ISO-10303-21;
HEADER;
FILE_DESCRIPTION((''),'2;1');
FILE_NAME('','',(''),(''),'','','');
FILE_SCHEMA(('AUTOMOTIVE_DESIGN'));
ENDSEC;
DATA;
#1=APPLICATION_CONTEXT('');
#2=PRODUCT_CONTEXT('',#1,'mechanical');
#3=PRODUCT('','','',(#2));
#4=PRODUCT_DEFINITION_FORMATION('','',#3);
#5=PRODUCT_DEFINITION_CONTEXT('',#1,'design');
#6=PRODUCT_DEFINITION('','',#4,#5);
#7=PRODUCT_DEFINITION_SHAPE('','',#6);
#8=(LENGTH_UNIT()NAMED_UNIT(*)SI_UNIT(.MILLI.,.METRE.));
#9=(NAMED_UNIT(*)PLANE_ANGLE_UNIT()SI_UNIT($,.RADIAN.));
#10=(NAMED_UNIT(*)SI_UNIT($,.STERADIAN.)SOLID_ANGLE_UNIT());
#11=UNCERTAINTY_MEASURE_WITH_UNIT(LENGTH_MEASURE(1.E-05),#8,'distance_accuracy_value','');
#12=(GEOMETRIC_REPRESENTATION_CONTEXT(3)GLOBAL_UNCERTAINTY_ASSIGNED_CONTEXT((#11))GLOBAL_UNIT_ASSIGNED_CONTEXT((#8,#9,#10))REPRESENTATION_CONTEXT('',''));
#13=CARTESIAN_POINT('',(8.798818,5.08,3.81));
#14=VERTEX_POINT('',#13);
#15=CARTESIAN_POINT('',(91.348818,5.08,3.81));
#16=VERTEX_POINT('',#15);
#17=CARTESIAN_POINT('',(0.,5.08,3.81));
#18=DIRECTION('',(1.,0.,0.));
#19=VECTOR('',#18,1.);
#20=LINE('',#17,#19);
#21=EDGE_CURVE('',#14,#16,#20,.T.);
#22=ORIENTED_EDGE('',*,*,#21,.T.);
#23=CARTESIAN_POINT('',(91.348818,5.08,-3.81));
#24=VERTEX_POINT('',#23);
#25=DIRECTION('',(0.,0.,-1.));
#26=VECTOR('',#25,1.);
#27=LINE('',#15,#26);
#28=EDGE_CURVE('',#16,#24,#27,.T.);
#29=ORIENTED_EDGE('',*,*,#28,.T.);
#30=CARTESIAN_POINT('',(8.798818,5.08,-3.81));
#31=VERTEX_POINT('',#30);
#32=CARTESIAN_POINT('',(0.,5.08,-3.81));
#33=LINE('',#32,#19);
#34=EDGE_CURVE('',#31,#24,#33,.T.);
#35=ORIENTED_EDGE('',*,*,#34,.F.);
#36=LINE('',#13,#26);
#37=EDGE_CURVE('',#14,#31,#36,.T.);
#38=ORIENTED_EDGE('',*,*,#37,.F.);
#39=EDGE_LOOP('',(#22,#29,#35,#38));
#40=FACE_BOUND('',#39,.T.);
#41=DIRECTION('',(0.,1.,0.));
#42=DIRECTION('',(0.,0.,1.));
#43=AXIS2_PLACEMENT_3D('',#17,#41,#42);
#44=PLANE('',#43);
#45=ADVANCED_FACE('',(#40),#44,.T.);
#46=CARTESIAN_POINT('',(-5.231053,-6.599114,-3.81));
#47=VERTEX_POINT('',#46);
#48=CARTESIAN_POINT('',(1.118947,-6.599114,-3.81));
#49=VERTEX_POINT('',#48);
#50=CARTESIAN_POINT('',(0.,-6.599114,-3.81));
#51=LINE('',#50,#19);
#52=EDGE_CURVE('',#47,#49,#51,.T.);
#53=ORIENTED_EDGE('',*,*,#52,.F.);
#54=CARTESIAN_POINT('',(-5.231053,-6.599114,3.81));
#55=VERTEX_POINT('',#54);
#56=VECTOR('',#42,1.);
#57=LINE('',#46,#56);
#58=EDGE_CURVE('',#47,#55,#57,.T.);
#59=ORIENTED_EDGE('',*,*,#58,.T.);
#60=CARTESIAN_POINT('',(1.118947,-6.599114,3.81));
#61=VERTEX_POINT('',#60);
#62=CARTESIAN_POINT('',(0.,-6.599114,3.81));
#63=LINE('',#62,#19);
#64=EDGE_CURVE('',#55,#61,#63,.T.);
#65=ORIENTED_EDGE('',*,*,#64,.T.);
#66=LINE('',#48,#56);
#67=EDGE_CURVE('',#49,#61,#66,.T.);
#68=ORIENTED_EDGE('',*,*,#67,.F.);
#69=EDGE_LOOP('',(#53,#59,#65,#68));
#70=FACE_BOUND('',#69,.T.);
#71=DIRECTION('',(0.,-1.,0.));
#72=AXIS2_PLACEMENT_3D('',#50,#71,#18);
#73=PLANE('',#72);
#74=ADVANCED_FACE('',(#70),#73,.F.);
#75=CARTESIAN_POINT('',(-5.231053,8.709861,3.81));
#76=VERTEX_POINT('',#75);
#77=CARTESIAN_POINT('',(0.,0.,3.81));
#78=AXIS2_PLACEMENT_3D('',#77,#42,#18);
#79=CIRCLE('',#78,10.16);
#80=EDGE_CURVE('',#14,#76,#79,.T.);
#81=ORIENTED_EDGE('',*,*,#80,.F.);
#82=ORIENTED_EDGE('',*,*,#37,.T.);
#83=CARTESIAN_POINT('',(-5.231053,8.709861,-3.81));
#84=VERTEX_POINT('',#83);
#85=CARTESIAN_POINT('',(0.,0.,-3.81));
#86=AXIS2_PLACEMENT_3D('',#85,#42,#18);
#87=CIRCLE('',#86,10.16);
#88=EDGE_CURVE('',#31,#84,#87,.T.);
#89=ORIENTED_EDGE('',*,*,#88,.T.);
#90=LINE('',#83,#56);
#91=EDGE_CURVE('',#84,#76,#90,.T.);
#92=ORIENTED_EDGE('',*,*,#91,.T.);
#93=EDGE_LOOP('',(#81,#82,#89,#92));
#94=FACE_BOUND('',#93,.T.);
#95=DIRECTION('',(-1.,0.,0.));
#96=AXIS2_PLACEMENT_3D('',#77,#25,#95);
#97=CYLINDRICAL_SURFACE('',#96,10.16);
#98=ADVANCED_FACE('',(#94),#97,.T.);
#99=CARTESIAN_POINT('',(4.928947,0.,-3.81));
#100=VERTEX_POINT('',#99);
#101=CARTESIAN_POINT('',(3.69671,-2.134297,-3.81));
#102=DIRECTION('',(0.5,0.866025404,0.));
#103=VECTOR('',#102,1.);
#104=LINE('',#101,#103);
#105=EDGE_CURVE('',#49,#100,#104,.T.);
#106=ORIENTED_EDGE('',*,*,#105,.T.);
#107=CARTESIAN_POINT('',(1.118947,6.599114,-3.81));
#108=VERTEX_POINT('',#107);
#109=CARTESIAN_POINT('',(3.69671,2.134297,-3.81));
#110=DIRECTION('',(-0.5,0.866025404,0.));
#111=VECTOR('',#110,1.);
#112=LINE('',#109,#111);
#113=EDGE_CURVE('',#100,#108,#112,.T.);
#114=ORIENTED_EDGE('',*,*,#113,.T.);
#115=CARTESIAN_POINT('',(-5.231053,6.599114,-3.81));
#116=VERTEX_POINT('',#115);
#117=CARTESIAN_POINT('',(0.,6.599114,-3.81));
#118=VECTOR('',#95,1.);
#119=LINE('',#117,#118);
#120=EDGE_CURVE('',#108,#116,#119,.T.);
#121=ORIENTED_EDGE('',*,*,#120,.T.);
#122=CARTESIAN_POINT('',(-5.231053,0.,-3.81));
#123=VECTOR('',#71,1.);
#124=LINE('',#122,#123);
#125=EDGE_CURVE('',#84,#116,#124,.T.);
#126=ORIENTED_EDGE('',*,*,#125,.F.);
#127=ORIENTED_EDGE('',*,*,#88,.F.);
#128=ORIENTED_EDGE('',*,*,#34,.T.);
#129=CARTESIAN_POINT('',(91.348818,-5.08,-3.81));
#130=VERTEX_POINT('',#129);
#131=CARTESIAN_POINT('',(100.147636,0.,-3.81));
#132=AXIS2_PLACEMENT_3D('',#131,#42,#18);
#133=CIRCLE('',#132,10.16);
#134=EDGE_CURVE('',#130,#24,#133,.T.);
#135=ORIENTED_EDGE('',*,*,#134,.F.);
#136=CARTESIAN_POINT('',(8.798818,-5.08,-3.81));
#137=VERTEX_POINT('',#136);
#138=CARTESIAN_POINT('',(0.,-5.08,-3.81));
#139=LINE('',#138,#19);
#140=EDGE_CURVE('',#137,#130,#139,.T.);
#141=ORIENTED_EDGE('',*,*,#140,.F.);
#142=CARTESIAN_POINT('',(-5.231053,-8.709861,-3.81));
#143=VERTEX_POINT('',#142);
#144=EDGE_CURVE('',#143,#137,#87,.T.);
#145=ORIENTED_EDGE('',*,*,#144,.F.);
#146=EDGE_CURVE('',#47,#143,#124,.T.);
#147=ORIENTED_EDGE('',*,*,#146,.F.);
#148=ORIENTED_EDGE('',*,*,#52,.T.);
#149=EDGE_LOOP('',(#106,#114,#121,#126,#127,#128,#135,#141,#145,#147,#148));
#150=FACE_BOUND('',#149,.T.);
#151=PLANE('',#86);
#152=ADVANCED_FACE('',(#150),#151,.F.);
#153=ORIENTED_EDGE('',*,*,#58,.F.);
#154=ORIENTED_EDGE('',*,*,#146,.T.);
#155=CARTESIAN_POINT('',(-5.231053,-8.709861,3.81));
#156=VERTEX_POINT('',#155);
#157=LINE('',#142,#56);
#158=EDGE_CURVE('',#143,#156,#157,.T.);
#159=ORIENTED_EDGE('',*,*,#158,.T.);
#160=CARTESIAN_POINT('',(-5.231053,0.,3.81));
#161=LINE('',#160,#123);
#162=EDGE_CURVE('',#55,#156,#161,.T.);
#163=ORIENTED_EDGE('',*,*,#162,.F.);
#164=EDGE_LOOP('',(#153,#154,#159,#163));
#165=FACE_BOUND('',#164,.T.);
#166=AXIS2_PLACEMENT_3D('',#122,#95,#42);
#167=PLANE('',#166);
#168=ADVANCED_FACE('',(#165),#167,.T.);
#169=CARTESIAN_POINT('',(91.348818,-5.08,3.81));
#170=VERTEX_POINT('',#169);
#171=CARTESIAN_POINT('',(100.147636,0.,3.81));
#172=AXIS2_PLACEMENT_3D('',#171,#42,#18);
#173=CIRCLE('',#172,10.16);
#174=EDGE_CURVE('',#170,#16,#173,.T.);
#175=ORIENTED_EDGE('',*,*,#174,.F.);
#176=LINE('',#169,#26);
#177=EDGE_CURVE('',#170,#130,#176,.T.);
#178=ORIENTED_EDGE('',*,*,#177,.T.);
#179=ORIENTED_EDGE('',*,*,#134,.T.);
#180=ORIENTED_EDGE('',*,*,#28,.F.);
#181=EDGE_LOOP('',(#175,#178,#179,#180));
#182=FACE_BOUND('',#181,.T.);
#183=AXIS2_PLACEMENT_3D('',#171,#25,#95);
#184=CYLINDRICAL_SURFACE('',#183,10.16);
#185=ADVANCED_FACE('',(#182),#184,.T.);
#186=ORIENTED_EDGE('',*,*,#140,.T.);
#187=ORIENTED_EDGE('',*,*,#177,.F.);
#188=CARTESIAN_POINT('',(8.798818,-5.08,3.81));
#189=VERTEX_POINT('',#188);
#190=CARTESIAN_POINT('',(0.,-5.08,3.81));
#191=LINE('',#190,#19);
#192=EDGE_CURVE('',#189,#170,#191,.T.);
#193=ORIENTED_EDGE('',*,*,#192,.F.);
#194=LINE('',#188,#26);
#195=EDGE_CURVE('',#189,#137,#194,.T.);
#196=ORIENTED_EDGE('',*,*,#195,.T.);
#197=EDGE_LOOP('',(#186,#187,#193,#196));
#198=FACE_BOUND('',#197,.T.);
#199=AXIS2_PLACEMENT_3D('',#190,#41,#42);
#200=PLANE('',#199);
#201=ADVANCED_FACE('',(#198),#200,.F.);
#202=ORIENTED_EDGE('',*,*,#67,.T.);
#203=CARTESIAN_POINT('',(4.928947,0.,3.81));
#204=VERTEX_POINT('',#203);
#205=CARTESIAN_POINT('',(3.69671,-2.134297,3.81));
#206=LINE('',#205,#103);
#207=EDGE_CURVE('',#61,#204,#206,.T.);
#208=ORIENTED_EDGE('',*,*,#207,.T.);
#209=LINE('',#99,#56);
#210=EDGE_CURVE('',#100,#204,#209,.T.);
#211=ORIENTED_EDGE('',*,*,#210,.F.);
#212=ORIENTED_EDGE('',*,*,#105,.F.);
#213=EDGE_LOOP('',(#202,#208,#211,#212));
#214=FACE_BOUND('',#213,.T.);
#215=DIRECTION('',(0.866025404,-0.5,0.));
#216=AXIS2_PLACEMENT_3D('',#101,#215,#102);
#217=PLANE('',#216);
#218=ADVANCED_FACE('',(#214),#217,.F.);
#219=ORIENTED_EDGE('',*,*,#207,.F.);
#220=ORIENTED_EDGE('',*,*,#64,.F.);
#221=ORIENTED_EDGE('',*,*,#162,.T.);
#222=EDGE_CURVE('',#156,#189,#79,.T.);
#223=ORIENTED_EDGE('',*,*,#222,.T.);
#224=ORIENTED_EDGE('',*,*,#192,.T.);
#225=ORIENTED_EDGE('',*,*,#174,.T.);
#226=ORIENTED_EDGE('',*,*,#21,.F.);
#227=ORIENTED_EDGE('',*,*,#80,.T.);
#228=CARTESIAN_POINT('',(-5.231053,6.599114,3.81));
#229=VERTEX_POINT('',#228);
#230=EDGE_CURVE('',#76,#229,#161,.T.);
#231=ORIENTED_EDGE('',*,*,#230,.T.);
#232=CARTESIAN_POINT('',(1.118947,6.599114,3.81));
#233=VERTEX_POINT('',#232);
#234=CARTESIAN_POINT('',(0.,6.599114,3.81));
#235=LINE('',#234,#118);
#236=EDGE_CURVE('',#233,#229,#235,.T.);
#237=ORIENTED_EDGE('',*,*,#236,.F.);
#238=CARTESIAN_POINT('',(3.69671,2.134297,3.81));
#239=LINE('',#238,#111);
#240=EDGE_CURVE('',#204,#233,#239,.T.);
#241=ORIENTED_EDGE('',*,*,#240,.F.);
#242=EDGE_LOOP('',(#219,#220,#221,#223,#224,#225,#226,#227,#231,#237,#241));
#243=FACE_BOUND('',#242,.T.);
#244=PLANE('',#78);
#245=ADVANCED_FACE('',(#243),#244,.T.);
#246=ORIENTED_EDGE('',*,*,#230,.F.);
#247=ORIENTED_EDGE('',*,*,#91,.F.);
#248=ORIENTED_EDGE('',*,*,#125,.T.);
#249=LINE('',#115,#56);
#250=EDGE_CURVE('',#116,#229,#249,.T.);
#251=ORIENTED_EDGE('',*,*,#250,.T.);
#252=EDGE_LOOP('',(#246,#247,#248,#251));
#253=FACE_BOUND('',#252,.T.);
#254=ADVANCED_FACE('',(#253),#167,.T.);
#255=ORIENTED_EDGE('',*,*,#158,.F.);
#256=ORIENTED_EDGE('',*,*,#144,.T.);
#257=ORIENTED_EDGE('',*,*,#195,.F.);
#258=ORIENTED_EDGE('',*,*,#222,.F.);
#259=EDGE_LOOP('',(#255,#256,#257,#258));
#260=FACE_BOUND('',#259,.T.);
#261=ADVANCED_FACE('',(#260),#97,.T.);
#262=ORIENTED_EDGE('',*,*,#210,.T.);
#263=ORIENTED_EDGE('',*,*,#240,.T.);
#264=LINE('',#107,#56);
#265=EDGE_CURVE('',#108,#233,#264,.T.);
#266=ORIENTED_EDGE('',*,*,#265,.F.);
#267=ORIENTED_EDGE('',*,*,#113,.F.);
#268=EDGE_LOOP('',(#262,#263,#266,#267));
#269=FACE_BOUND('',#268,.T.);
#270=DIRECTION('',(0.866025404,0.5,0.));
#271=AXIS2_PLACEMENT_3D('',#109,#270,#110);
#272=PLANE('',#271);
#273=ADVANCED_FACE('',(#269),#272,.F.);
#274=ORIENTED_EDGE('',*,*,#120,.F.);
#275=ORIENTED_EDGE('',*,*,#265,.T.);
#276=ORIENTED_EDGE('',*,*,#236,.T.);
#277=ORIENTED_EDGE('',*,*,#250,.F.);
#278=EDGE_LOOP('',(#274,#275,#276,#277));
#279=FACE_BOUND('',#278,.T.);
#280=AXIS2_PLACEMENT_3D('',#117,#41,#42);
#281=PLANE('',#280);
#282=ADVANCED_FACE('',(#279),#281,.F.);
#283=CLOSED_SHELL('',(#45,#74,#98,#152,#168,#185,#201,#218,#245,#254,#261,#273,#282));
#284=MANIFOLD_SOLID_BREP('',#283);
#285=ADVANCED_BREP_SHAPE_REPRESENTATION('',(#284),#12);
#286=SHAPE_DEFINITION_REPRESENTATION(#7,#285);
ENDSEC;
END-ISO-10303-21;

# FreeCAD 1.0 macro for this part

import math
import FreeCAD as App
import Part
import Sketcher
Q = App.Units.Quantity

doc = App.newDocument("Part")
params = doc.addObject("Spreadsheet::Sheet", "Params")
for row, (alias, value) in enumerate([
    ("sketch1_radius", "0.4 in"),
    ("sketch1_width", "3.25 in"),
    ("pad1_length", "0.3 in"),
    ("sketch2_radius", "0.4 in"),
    ("sketch2_length", "0.3 in"),
    ("sketch2_width", "0.25 in"),
], start=1):
    params.set(f"A{row}", alias)
    params.set(f"B{row}", "=" + value)
    params.setAlias(f"B{row}", alias)

body = doc.addObject("PartDesign::Body", "Body")

sketch1 = doc.addObject("Sketcher::SketchObject", "Sketch")
body.addObject(sketch1)
sketch1.AttachmentSupport = (doc.XY_Plane, [""])
sketch1.MapMode = "FlatFace"
sketch1.addGeometry([
    Part.ArcOfCircle(Part.Circle(App.Vector(100, 0, 0), App.Vector(0, 0, 1), 10), math.radians(0), math.radians(150)),
    Part.LineSegment(App.Vector(91, 5, 0), App.Vector(9, 5, 0)),
    Part.ArcOfCircle(Part.Circle(App.Vector(0, 0, 0), App.Vector(0, 0, 1), 10), math.radians(30), math.radians(330)),
    Part.LineSegment(App.Vector(9, -5, 0), App.Vector(91, -5, 0)),
    Part.ArcOfCircle(Part.Circle(App.Vector(100, 0, 0), App.Vector(0, 0, 1), 10), math.radians(-150), math.radians(0)),
], False)
sketch1.addConstraint([
    Sketcher.Constraint("Coincident", 0, 2, 1, 1),
    Sketcher.Constraint("Coincident", 1, 2, 2, 1),
    Sketcher.Constraint("Coincident", 2, 2, 3, 1),
    Sketcher.Constraint("Coincident", 3, 2, 4, 1),
    Sketcher.Constraint("Tangent", 4, 2, 0, 1),
    Sketcher.Constraint("Horizontal", 1),
    Sketcher.Constraint("Horizontal", 3),
    Sketcher.Constraint("Coincident", 2, 3, -1, 1),
    Sketcher.Constraint("Equal", 0, 2),
    Sketcher.Constraint("Equal", 2, 4),
    Sketcher.Constraint("Symmetric", 0, 2, 3, 2, -1),
    Sketcher.Constraint("PointOnObject", 4, 2, -1),
    Sketcher.Constraint("Radius", 0, Q("0.4 in")),
    Sketcher.Constraint("DistanceX", 1, 2, 1, 1, Q("3.25 in")),
    Sketcher.Constraint("DistanceY", -1, 1, 0, 2, Q("0.2 in")),
])
sketch1.setExpression("Constraints[12]", "Params.sketch1_radius")
sketch1.setExpression("Constraints[13]", "Params.sketch1_width")
pad1 = doc.addObject("PartDesign::Pad", "Pad")
body.addObject(pad1)
pad1.Profile = sketch1
pad1.setExpression("Length", "Params.pad1_length")
pad1.Midplane = True

sketch2 = doc.addObject("Sketcher::SketchObject", "Sketch001")
body.addObject(sketch2)
sketch2.AttachmentSupport = (doc.XY_Plane, [""])
sketch2.MapMode = "FlatFace"
sketch2.addGeometry([
    Part.LineSegment(App.Vector(1.1, 6.6, 0), App.Vector(-5.2, 6.6, 0)),
    Part.LineSegment(App.Vector(-5.2, 6.6, 0), App.Vector(-5.2, 8.7, 0)),
    Part.ArcOfCircle(Part.Circle(App.Vector(0, 0, 0), App.Vector(0, 0, 1), 10.2), math.radians(121), math.radians(178)),
    Part.ArcOfCircle(Part.Circle(App.Vector(0, 0, 0), App.Vector(0, 0, 1), 10.2), math.radians(178.49), math.radians(181.51)),
    Part.ArcOfCircle(Part.Circle(App.Vector(0, 0, 0), App.Vector(0, 0, 1), 10.2), math.radians(-178), math.radians(-121)),
    Part.LineSegment(App.Vector(-5.2, -8.7, 0), App.Vector(-5.2, -6.6, 0)),
    Part.LineSegment(App.Vector(-5.2, -6.6, 0), App.Vector(1.1, -6.6, 0)),
    Part.LineSegment(App.Vector(1.1, -6.6, 0), App.Vector(4.9, 0, 0)),
    Part.LineSegment(App.Vector(4.9, 0, 0), App.Vector(1.1, 6.6, 0)),
], False)
sketch2.addConstraint([
    Sketcher.Constraint("Coincident", 0, 2, 1, 1),
    Sketcher.Constraint("Coincident", 1, 2, 2, 1),
    Sketcher.Constraint("Tangent", 2, 2, 3, 1),
    Sketcher.Constraint("Tangent", 3, 2, 4, 1),
    Sketcher.Constraint("Coincident", 4, 2, 5, 1),
    Sketcher.Constraint("Coincident", 5, 2, 6, 1),
    Sketcher.Constraint("Coincident", 6, 2, 7, 1),
    Sketcher.Constraint("Coincident", 7, 2, 8, 1),
    Sketcher.Constraint("Coincident", 8, 2, 0, 1),
    Sketcher.Constraint("Horizontal", 0),
    Sketcher.Constraint("Vertical", 1),
    Sketcher.Constraint("Vertical", 5),
    Sketcher.Constraint("Horizontal", 6),
    Sketcher.Constraint("Coincident", 2, 3, -1, 1),
    Sketcher.Constraint("Coincident", 4, 3, -1, 1),
    Sketcher.Constraint("Symmetric", 0, 2, 5, 2, -1),
    Sketcher.Constraint("PointOnObject", 7, 2, -1),
    Sketcher.Constraint("Vertical", 2, 2, 3, 2),
    Sketcher.Constraint("Vertical", 6, 2, 8, 2),
    Sketcher.Constraint("Radius", 2, Q("0.4 in")),
    Sketcher.Constraint("Angle", 7, Q("60 deg")),
    Sketcher.Constraint("Distance", 7, Q("0.3 in")),
    Sketcher.Constraint("DistanceX", 0, 2, 0, 1, Q("0.25 in")),
    Sketcher.Constraint("DistanceY", 1, 1, 1, 2, Q("2.110748 mm")),
    Sketcher.Constraint("DistanceX", 2, 2, -1, 1, Q("10.156472 mm")),
])
sketch2.setExpression("Constraints[19]", "Params.sketch2_radius")
sketch2.setExpression("Constraints[21]", "Params.sketch2_length")
sketch2.setExpression("Constraints[22]", "Params.sketch2_width")
pocket1 = doc.addObject("PartDesign::Pocket", "Pocket")
body.addObject(pocket1)
pocket1.Profile = sketch2
pocket1.Type = "ThroughAll"
pocket1.Midplane = True

doc.recompute()
